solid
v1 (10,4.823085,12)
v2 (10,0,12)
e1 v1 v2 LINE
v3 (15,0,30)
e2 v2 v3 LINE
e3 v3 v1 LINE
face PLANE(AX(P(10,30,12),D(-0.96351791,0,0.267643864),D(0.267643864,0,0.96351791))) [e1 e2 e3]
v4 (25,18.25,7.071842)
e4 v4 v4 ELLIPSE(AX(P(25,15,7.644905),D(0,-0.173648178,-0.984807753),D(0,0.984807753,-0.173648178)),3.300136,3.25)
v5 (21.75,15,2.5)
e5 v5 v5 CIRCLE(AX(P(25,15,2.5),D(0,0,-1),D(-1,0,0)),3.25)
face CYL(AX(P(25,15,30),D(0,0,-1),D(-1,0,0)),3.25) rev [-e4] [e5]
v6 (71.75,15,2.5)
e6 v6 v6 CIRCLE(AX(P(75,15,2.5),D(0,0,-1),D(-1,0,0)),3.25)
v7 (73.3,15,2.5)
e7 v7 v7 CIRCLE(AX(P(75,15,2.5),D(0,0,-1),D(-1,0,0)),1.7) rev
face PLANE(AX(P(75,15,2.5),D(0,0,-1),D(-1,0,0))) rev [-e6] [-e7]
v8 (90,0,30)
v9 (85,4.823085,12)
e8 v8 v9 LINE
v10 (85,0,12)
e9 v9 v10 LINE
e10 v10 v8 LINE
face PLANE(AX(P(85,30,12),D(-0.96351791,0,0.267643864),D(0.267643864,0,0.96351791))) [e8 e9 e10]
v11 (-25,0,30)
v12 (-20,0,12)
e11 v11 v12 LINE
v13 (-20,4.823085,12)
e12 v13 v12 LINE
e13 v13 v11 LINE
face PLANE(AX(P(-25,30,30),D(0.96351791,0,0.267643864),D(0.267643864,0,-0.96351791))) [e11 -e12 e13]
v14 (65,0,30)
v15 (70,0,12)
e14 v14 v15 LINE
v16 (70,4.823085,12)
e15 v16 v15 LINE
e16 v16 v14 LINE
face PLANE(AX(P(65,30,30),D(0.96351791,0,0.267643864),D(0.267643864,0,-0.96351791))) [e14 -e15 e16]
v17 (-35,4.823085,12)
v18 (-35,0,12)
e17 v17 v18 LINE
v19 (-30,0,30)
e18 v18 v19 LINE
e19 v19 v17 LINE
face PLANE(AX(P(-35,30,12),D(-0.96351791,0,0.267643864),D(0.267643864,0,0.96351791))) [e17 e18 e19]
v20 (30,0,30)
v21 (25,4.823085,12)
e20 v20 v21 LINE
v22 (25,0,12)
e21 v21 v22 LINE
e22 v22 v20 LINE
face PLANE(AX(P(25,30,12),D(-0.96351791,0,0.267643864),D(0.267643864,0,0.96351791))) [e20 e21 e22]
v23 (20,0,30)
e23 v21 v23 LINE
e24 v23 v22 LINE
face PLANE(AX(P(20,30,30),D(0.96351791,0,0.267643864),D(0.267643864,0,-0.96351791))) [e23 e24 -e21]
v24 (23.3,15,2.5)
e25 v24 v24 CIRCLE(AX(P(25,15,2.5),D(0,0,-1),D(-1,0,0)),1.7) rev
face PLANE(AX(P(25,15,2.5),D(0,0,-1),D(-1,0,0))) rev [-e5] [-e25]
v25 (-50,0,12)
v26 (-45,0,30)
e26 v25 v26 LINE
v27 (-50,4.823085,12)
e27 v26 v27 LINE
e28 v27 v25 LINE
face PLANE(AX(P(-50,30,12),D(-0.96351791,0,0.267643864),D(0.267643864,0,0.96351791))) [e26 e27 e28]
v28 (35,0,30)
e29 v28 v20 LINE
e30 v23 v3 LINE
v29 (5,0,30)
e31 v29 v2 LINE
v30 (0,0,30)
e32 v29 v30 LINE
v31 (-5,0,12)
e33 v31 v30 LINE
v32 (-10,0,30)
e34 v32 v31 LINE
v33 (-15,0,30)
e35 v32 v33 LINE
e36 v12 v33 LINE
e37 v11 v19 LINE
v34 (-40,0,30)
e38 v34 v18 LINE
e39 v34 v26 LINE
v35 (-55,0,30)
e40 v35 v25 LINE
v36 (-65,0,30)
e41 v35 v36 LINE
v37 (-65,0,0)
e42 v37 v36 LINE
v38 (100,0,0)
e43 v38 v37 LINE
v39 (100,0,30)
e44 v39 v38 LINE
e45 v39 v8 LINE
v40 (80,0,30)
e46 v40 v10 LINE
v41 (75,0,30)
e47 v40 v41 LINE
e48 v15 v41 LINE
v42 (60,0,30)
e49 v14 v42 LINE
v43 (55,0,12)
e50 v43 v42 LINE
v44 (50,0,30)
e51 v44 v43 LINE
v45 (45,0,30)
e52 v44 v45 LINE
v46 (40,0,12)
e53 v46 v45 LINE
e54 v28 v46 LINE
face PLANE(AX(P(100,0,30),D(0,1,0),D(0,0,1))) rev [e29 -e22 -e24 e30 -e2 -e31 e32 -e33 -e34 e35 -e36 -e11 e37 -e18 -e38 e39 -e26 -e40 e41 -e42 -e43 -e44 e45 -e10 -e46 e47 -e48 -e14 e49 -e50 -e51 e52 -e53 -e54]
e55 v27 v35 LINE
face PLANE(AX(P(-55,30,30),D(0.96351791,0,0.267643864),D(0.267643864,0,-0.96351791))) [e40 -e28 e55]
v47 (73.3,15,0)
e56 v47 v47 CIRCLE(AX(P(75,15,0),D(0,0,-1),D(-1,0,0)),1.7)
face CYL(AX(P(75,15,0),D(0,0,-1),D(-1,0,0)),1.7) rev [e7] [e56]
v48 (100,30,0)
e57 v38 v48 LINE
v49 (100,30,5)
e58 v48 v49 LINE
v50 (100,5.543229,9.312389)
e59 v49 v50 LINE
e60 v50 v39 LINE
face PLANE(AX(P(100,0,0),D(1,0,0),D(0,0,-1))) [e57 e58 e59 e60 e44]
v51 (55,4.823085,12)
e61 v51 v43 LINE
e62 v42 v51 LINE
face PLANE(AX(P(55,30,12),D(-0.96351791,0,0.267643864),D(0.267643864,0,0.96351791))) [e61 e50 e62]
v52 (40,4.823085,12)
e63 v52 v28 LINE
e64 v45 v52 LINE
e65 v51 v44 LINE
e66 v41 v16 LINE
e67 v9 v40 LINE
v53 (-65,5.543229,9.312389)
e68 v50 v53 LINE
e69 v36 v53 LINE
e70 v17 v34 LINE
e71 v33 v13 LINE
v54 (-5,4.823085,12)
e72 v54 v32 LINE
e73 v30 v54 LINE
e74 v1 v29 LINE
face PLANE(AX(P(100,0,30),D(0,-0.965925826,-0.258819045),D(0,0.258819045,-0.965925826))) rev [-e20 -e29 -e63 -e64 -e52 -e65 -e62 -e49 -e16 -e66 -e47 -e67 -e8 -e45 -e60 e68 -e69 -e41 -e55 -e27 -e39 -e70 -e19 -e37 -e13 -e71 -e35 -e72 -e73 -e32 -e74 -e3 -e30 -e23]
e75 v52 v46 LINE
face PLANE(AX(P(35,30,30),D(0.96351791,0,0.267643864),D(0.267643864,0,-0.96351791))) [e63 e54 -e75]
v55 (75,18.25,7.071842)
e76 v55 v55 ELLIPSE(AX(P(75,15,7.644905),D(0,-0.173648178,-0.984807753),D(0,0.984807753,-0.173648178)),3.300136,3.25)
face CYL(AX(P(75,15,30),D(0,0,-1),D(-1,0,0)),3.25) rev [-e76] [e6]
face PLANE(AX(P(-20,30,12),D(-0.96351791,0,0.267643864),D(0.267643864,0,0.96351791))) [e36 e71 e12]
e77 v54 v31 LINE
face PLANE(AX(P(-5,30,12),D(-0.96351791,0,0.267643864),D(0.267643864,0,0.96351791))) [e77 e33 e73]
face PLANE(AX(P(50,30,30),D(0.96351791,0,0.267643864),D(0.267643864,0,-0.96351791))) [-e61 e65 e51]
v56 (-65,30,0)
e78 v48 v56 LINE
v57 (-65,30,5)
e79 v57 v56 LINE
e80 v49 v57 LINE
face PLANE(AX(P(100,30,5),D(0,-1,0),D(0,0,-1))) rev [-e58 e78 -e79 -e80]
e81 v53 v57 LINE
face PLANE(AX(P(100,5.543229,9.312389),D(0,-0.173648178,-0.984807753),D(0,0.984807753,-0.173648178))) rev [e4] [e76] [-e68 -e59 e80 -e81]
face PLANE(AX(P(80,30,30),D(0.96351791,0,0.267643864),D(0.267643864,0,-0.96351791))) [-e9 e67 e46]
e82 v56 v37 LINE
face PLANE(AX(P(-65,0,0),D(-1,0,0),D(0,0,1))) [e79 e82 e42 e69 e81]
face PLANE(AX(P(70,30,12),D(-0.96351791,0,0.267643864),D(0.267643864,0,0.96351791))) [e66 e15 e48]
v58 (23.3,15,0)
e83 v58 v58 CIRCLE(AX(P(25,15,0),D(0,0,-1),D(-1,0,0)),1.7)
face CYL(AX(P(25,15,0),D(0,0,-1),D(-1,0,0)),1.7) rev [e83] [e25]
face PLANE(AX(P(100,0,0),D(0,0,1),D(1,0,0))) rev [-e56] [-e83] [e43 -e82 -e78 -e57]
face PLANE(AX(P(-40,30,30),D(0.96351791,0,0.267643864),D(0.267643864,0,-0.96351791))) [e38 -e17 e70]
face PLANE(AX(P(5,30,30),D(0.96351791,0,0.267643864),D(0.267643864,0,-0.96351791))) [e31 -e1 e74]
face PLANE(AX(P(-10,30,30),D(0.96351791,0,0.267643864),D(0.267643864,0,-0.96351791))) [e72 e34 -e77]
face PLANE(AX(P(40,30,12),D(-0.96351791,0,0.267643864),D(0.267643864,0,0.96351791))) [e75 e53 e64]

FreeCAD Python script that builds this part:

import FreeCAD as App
import Part
import Sketcher

V = App.Vector
Q = App.Units.Quantity


def add_polygon(sketch, points):
    """Adds a closed chain of lines whose ends are joined by coincident constraints."""
    first, n = sketch.GeometryCount, len(points)
    for a, b in zip(points, points[1:] + points[:1]):
        sketch.addGeometry(Part.LineSegment(App.Vector(*a, 0), App.Vector(*b, 0)), False)
    for i in range(n):
        sketch.addConstraint(Sketcher.Constraint("Coincident", first + i, 2, first + (i + 1) % n, 1))

doc = App.newDocument("Part")
params = doc.addObject("Spreadsheet::Sheet", "Params")
for row, (alias, value) in enumerate([
    ("sketch1_width", "30 mm"),
    ("sketch1_height", "5 mm"),
    ("pad1_length", "100 mm"),
    ("sketch2_diameter", "3.4 mm"),
    ("hole_diameter", "3.4 mm"),
    ("sketch3_diameter", "6.5 mm"),
    ("sketch4_width", "30 mm"),
    ("sketch4_height", "5 mm"),
    ("pad2_length", "65 mm"),
    ("sketch5_width", "10 mm"),
    ("pocket2_length", "219.25561 mm"),
    ("linearpattern_pitch", "15 mm"),
], start=1):
    params.set(f"A{row}", alias)
    params.set(f"B{row}", "=" + value)
    params.setAlias(f"B{row}", alias)

body = doc.addObject("PartDesign::Body", "Body")

# Sketch on YZ plane
sketch1 = body.newObject("Sketcher::SketchObject", "Sketch")
sketch1.AttachmentSupport = (doc.getObject("YZ_Plane"), [""])
sketch1.MapMode = "FlatFace"
add_polygon(sketch1, [(0, 0), (30, 0), (30, 5), (5.543229, 9.312389), (0, 30)])  # lines 0-4
sketch1.addConstraint([
    Sketcher.Constraint("Horizontal", 0),
    Sketcher.Constraint("Vertical", 1),
    Sketcher.Constraint("Vertical", 4),
    Sketcher.Constraint("Coincident", 4, 2, -1, 1),
    Sketcher.Constraint("Equal", 0, 4),
    Sketcher.Constraint("DistanceX", 0, 1, 0, 2, 30.0),
    Sketcher.Constraint("DistanceY", 1, 1, 1, 2, 5.0),
    Sketcher.Constraint("Angle", 2, Q("170 deg")),
    Sketcher.Constraint("Angle", 3, Q("105 deg")),
])
sketch1.setExpression("Constraints[10]", "Params.sketch1_width")
sketch1.setExpression("Constraints[11]", "Params.sketch1_height")
pad1 = body.newObject("PartDesign::Pad", "Pad")
pad1.Profile = sketch1
pad1.setExpression("Length", "Params.pad1_length")

# Sketch on XY plane
sketch2 = body.newObject("Sketcher::SketchObject", "Sketch001")
sketch2.AttachmentSupport = (doc.getObject("XY_Plane"), [""])
sketch2.MapMode = "FlatFace"
sketch2.addGeometry([
    Part.Circle(V(25, 15, 0), V(0, 0, 1), 1.7),
    Part.Circle(V(75, 15, 0), V(0, 0, 1), 1.7),
], False)
sketch2.addConstraint([
    Sketcher.Constraint("Equal", 0, 1),
    Sketcher.Constraint("Horizontal", 0, 3, 1, 3),
    Sketcher.Constraint("Diameter", 0, 3.4),
    Sketcher.Constraint("DistanceX", -1, 1, 0, 3, 25.0),
    Sketcher.Constraint("DistanceY", -1, 1, 0, 3, 15.0),
    Sketcher.Constraint("DistanceX", -1, 1, 1, 3, 75.0),
])
sketch2.setExpression("Constraints[2]", "Params.sketch2_diameter")
doc.recompute()
hole = body.newObject("PartDesign::Hole", "Hole")
hole.Profile = sketch2
hole.ThreadType = "None"
hole.setExpression("Diameter", "Params.hole_diameter")
hole.DepthType = "ThroughAll"
hole.Reversed = True

# Sketch on XY plane
sketch3 = body.newObject("Sketcher::SketchObject", "Sketch002")
sketch3.AttachmentSupport = (doc.getObject("XY_Plane"), [""])
sketch3.MapMode = "FlatFace"
sketch3.AttachmentOffset = App.Placement(V(0, 0, 2.5), App.Rotation())
sketch3.addGeometry([
    Part.Circle(V(75, 15, 0), V(0, 0, 1), 3.25),
    Part.Circle(V(25, 15, 0), V(0, 0, 1), 3.25),
], False)
sketch3.addConstraint([
    Sketcher.Constraint("Equal", 0, 1),
    Sketcher.Constraint("Horizontal", 0, 3, 1, 3),
    Sketcher.Constraint("Diameter", 0, 6.5),
    Sketcher.Constraint("DistanceX", -1, 1, 0, 3, 75.0),
    Sketcher.Constraint("DistanceY", -1, 1, 0, 3, 15.0),
    Sketcher.Constraint("DistanceX", -1, 1, 1, 3, 25.0),
])
sketch3.setExpression("Constraints[2]", "Params.sketch3_diameter")
pocket1 = body.newObject("PartDesign::Pocket", "Pocket")
pocket1.Profile = sketch3
pocket1.Type = "ThroughAll"
pocket1.Reversed = True

# Sketch on YZ plane
sketch4 = body.newObject("Sketcher::SketchObject", "Sketch003")
sketch4.AttachmentSupport = (doc.getObject("YZ_Plane"), [""])
sketch4.MapMode = "FlatFace"
add_polygon(sketch4, [(0, 0), (0, 30), (5.543229, 9.312389), (30, 5), (30, 0)])  # lines 0-4
sketch4.addConstraint([
    Sketcher.Constraint("Vertical", 0),
    Sketcher.Constraint("Vertical", 3),
    Sketcher.Constraint("Horizontal", 4),
    Sketcher.Constraint("Coincident", 4, 2, -1, 1),
    Sketcher.Constraint("Equal", 4, 0),
    Sketcher.Constraint("DistanceX", 4, 2, 4, 1, 30.0),
    Sketcher.Constraint("DistanceY", 3, 2, 3, 1, 5.0),
    Sketcher.Constraint("Angle", 1, Q("-75 deg")),
    Sketcher.Constraint("Angle", 2, Q("-10 deg")),
])
sketch4.setExpression("Constraints[10]", "Params.sketch4_width")
sketch4.setExpression("Constraints[11]", "Params.sketch4_height")
pad2 = body.newObject("PartDesign::Pad", "Pad001")
pad2.Profile = sketch4
pad2.setExpression("Length", "Params.pad2_length")
pad2.Reversed = True

# Sketch on XZ plane
sketch5 = body.newObject("Sketcher::SketchObject", "Sketch004")
sketch5.AttachmentSupport = (doc.getObject("XZ_Plane"), [""])
sketch5.MapMode = "FlatFace"
add_polygon(sketch5, [(-50, 12), (-55, 30), (-45, 30)])  # lines 0-2
sketch5.addConstraint([
    Sketcher.Constraint("Horizontal", 1),
    Sketcher.Constraint("Equal", 0, 2),
    Sketcher.Constraint("DistanceX", 1, 1, 1, 2, 10.0),
    Sketcher.Constraint("DistanceX", 0, 2, -1, 1, 55.0),
    Sketcher.Constraint("DistanceY", -1, 1, 0, 2, 30.0),
    Sketcher.Constraint("DistanceY", -1, 1, 2, 2, 12.0),
])
sketch5.setExpression("Constraints[5]", "Params.sketch5_width")
pocket2 = body.newObject("PartDesign::Pocket", "Pocket001")
pocket2.Profile = sketch5
pocket2.setExpression("Length", "Params.pocket2_length")
pocket2.Midplane = True
doc.recompute()

linearpattern = body.newObject("PartDesign::LinearPattern", "LinearPattern")
linearpattern.Originals = [pocket2]
linearpattern.Direction = (doc.getObject("X_Axis"), [""])
linearpattern.Mode = "offset"
linearpattern.setExpression("Offset", "Params.linearpattern_pitch")
linearpattern.Occurrences = 10
body.Tip = linearpattern

doc.recompute()
